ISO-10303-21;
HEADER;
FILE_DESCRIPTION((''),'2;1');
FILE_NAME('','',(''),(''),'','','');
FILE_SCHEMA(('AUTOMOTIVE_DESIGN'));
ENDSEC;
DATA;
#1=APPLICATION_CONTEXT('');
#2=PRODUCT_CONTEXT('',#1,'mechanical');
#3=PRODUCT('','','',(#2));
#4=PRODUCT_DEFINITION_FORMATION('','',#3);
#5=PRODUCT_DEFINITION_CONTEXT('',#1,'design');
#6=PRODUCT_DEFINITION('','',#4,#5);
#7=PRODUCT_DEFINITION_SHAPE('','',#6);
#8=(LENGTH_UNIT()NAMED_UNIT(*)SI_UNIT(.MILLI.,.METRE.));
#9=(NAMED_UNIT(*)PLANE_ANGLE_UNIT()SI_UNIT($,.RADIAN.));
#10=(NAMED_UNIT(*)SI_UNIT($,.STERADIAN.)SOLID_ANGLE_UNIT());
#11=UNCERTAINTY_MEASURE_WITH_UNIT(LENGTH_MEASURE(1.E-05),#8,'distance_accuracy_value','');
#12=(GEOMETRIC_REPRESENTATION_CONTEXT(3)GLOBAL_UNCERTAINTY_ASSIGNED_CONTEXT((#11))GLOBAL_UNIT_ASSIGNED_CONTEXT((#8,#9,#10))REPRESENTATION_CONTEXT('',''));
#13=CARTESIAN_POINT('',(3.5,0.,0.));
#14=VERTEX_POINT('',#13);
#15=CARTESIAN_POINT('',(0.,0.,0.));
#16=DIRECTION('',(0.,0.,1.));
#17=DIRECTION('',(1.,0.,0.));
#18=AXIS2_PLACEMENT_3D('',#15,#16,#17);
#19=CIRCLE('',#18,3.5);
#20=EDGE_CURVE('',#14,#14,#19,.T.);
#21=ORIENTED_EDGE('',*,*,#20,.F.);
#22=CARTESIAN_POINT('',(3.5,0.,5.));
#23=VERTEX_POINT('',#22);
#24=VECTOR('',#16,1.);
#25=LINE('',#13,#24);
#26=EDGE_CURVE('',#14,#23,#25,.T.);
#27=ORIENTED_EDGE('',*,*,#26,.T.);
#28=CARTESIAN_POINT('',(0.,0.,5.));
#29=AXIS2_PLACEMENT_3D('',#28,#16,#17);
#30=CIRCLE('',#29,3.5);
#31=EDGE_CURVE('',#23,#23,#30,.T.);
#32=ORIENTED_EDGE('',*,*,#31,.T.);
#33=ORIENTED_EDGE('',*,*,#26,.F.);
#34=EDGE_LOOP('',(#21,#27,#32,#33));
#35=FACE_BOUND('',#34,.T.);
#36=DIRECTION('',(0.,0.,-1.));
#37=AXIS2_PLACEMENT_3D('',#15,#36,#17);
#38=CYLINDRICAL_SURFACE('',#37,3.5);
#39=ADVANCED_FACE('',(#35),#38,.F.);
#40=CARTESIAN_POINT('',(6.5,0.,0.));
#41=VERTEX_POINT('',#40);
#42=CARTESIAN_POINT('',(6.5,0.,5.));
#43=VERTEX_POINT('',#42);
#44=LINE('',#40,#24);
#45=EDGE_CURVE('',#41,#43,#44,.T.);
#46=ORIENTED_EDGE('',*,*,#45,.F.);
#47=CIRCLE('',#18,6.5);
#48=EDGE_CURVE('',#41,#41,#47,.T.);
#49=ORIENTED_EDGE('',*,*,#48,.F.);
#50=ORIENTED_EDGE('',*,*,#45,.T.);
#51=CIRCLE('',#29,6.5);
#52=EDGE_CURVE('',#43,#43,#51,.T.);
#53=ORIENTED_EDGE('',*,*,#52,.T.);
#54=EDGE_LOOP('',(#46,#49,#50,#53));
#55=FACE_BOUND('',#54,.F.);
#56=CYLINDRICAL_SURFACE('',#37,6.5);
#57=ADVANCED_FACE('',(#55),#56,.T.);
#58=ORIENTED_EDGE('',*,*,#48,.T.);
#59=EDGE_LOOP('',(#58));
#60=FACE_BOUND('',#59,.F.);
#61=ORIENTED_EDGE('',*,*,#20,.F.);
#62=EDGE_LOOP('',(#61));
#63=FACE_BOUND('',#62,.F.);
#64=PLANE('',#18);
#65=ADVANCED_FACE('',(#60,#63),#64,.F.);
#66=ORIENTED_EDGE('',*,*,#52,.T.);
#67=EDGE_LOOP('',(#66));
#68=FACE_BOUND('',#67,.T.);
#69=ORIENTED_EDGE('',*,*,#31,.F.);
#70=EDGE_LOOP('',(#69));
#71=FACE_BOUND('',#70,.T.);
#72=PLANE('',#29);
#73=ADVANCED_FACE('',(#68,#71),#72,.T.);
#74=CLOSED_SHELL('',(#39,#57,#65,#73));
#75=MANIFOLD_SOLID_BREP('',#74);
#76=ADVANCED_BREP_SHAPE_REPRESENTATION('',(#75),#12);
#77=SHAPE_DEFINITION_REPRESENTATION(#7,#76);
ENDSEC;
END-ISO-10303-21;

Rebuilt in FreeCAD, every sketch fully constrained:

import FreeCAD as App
import Part
import Sketcher

V = App.Vector

doc = App.newDocument("Part")
body = doc.addObject("PartDesign::Body", "Body")

# Sketch on XY plane
sketch1 = doc.addObject("Sketcher::SketchObject", "Sketch")
body.addObject(sketch1)
sketch1.AttachmentSupport = (doc.XY_Plane, [""])
sketch1.MapMode = "FlatFace"
sketch1.addGeometry([
    Part.Circle(V(0, 0, 0), V(0, 0, 1), 6.5),
    Part.Circle(V(0, 0, 0), V(0, 0, 1), 3.5),
], False)
sketch1.addConstraint([
    Sketcher.Constraint("Coincident", 0, 3, -1, 1),
    Sketcher.Constraint("Coincident", 1, 3, -1, 1),
    Sketcher.Constraint("Diameter", 0, 13.0),
    Sketcher.Constraint("Diameter", 1, 7.0),
])
pad1 = doc.addObject("PartDesign::Pad", "Pad")
body.addObject(pad1)
pad1.Profile = sketch1
pad1.Length = 5

doc.recompute()
